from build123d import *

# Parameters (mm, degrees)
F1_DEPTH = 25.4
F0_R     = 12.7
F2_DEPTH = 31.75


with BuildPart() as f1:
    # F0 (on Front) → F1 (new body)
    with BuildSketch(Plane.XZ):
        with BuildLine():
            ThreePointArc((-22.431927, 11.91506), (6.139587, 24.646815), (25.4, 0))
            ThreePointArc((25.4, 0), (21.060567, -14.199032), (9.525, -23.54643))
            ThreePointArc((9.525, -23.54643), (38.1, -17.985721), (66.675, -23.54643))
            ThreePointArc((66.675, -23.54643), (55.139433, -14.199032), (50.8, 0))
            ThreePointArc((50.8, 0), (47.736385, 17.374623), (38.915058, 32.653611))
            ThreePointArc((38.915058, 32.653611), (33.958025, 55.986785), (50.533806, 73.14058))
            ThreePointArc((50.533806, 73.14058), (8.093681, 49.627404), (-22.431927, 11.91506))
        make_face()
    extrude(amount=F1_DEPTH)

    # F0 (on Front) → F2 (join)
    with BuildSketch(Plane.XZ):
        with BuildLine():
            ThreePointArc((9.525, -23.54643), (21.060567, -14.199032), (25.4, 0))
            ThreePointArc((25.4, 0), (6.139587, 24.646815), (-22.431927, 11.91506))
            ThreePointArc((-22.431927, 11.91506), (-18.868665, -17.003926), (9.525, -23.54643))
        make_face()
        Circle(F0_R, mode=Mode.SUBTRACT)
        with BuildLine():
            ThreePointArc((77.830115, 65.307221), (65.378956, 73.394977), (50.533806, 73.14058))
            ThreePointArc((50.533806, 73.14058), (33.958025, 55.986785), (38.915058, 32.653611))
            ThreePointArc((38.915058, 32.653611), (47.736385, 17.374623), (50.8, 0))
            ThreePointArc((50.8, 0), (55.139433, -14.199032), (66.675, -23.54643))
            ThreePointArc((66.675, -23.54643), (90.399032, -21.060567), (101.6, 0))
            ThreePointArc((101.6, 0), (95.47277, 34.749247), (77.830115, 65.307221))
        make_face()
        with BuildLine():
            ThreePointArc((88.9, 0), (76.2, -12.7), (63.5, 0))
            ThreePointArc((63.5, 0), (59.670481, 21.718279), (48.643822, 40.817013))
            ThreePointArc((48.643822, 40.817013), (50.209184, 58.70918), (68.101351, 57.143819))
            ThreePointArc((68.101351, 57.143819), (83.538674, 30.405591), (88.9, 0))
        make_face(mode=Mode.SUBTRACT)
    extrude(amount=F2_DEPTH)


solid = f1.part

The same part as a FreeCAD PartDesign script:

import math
import FreeCAD as App
import Part
import Sketcher
Q = App.Units.Quantity

doc = App.newDocument("Part")
body = doc.addObject("PartDesign::Body", "Body")

# Sketch on XZ plane
sketch1 = body.newObject("Sketcher::SketchObject", "Sketch")
sketch1.AttachmentSupport = (doc.getObject("XZ_Plane"), [""])
sketch1.MapMode = "FlatFace"
sketch1.addGeometry(Part.ArcOfCircle(Part.Circle(App.Vector(0, 0, 0), App.Vector(0, 0, 1), 25.4), math.radians(-0.000001), math.radians(152.024314)), False)
sketch1.addGeometry(Part.ArcOfCircle(Part.Circle(App.Vector(0, 0, 0), App.Vector(0, 0, 1), 25.4), math.radians(-67.975687), math.radians(-0.000001)), False)
sketch1.addGeometry(Part.ArcOfCircle(Part.Circle(App.Vector(38.1, -94.185726, 0), App.Vector(0, 0, 1), 76.200005), math.radians(67.975689), math.radians(112.024311)), False)
sketch1.addGeometry(Part.ArcOfCircle(Part.Circle(App.Vector(76.2, 0, 0), App.Vector(0, 0, 1), 25.4), math.radians(-179.999999), math.radians(-112.024313)), False)
sketch1.addGeometry(Part.ArcOfCircle(Part.Circle(App.Vector(-0.000008, -0.000002, 0), App.Vector(0, 0, 1), 50.800008), math.radians(0.000002), math.radians(39.999996)), False)
sketch1.addGeometry(Part.ArcOfCircle(Part.Circle(App.Vector(58.372585, 48.980417, 0), App.Vector(0, 0, 1), 25.399999), math.radians(107.975686), math.radians(220.000003)), False)
sketch1.addGeometry(Part.ArcOfCircle(Part.Circle(App.Vector(89.727709, -47.660242, 0), App.Vector(0, 0, 1), 127.000002), math.radians(107.975688), math.radians(152.024313)), False)
sketch1.addConstraint(Sketcher.Constraint("Tangent", 0, 1, 1, 2))
sketch1.addConstraint(Sketcher.Constraint("Tangent", 1, 1, 2, 2))
sketch1.addConstraint(Sketcher.Constraint("Tangent", 2, 1, 3, 2))
sketch1.addConstraint(Sketcher.Constraint("Tangent", 3, 1, 4, 1))
sketch1.addConstraint(Sketcher.Constraint("Tangent", 4, 2, 5, 2))
sketch1.addConstraint(Sketcher.Constraint("Tangent", 5, 1, 6, 1))
sketch1.addConstraint(Sketcher.Constraint("Tangent", 6, 2, 0, 2))
sketch1.addConstraint(Sketcher.Constraint("Coincident", 0, 3, -1, 1))
sketch1.addConstraint(Sketcher.Constraint("Coincident", 4, 3, -1, 1))
sketch1.addConstraint(Sketcher.Constraint("Equal", 0, 1))
sketch1.addConstraint(Sketcher.Constraint("Equal", 1, 3))
sketch1.addConstraint(Sketcher.Constraint("Equal", 3, 5))
sketch1.addConstraint(Sketcher.Constraint("PointOnObject", 3, 3, -1))
sketch1.addConstraint(Sketcher.Constraint("PointOnObject", 0, 1, -1))
sketch1.addConstraint(Sketcher.Constraint("Radius", 0, Q("1 in")))
sketch1.addConstraint(Sketcher.Constraint("Radius", 6, Q("5.0000001 in")))
sketch1.addConstraint(Sketcher.Constraint("DistanceX", -1, 1, 3, 3, Q("3 in")))
sketch1.addConstraint(Sketcher.Constraint("DistanceX", -1, 1, 1, 1, Q("0.375 in")))
sketch1.addConstraint(Sketcher.Constraint("DistanceX", -1, 1, 6, 3, 89.727709))
pad1 = body.newObject("PartDesign::Pad", "Pad")
pad1.Profile = sketch1
pad1.Length = Q("1 in")

# Sketch on XZ plane
sketch2 = body.newObject("Sketcher::SketchObject", "Sketch001")
sketch2.AttachmentSupport = (doc.getObject("XZ_Plane"), [""])
sketch2.MapMode = "FlatFace"
sketch2.addGeometry(Part.ArcOfCircle(Part.Circle(App.Vector(0, 0, 0), App.Vector(0, 0, 1), 25.4), math.radians(-67.975687), math.radians(-0.000001)), False)
sketch2.addGeometry(Part.ArcOfCircle(Part.Circle(App.Vector(0, 0, 0), App.Vector(0, 0, 1), 25.4), math.radians(-0.000001), math.radians(152.024314)), False)
sketch2.addGeometry(Part.ArcOfCircle(Part.Circle(App.Vector(-0.000001, 0, 0), App.Vector(0, 0, 1), 25.4), math.radians(152.024312), math.radians(292.024314)), False)
sketch2.addGeometry(Part.Circle(App.Vector(0, 0, 0), App.Vector(0, 0, 1), 12.7), False)
sketch2.addGeometry(Part.ArcOfCircle(Part.Circle(App.Vector(58.372586, 48.980417, 0), App.Vector(0, 0, 1), 25.399999), math.radians(39.999997), math.radians(107.975688)), False)
sketch2.addGeometry(Part.ArcOfCircle(Part.Circle(App.Vector(58.372585, 48.980417, 0), App.Vector(0, 0, 1), 25.399999), math.radians(107.975686), math.radians(220.000003)), False)
sketch2.addGeometry(Part.ArcOfCircle(Part.Circle(App.Vector(-0.000008, -0.000002, 0), App.Vector(0, 0, 1), 50.800008), math.radians(0.000002), math.radians(39.999996)), False)
sketch2.addGeometry(Part.ArcOfCircle(Part.Circle(App.Vector(76.2, 0, 0), App.Vector(0, 0, 1), 25.4), math.radians(-179.999999), math.radians(-112.024313)), False)
sketch2.addGeometry(Part.ArcOfCircle(Part.Circle(App.Vector(76.2, 0, 0), App.Vector(0, 0, 1), 25.4), math.radians(-112.024313), math.radians(0)), False)
sketch2.addGeometry(Part.ArcOfCircle(Part.Circle(App.Vector(0.000002, 0, 0), App.Vector(0, 0, 1), 101.599998), math.radians(0), math.radians(40.000001)), False)
sketch2.addGeometry(Part.ArcOfCircle(Part.Circle(App.Vector(-0.000001, 0, 0), App.Vector(0, 0, 1), 88.900001), math.radians(0), math.radians(40)), False)
sketch2.addGeometry(Part.ArcOfCircle(Part.Circle(App.Vector(76.2, 0, 0), App.Vector(0, 0, 1), 12.7), math.radians(180), math.radians(360)), False)
sketch2.addGeometry(Part.ArcOfCircle(Part.Circle(App.Vector(-0.000005, -0.000002, 0), App.Vector(0, 0, 1), 63.500005), math.radians(0.000002), math.radians(39.999999)), False)
sketch2.addGeometry(Part.ArcOfCircle(Part.Circle(App.Vector(58.372587, 48.980415, 0), App.Vector(0, 0, 1), 12.7), math.radians(40.000004), math.radians(219.999998)), False)
sketch2.addConstraint(Sketcher.Constraint("Tangent", 0, 2, 1, 1))
sketch2.addConstraint(Sketcher.Constraint("Tangent", 1, 2, 2, 1))
sketch2.addConstraint(Sketcher.Constraint("Tangent", 2, 2, 0, 1))
sketch2.addConstraint(Sketcher.Constraint("Tangent", 4, 2, 5, 1))
sketch2.addConstraint(Sketcher.Constraint("Tangent", 5, 2, 6, 2))
sketch2.addConstraint(Sketcher.Constraint("Tangent", 6, 1, 7, 1))
sketch2.addConstraint(Sketcher.Constraint("Tangent", 7, 2, 8, 1))
sketch2.addConstraint(Sketcher.Constraint("Tangent", 8, 2, 9, 1))
sketch2.addConstraint(Sketcher.Constraint("Tangent", 9, 2, 4, 1))
sketch2.addConstraint(Sketcher.Constraint("Tangent", 10, 1, 11, 2))
sketch2.addConstraint(Sketcher.Constraint("Tangent", 11, 1, 12, 1))
sketch2.addConstraint(Sketcher.Constraint("Tangent", 12, 2, 13, 2))
sketch2.addConstraint(Sketcher.Constraint("Tangent", 13, 1, 10, 2))
sketch2.addConstraint(Sketcher.Constraint("Coincident", 0, 3, -1, 1))
sketch2.addConstraint(Sketcher.Constraint("Coincident", 3, 3, -1, 1))
sketch2.addConstraint(Sketcher.Constraint("Coincident", 6, 3, -1, 1))
sketch2.addConstraint(Sketcher.Constraint("Coincident", 9, 3, -1, 1))
sketch2.addConstraint(Sketcher.Constraint("Coincident", 10, 3, -1, 1))
sketch2.addConstraint(Sketcher.Constraint("Coincident", 12, 3, -1, 1))
sketch2.addConstraint(Sketcher.Constraint("Coincident", 11, 3, 7, 3))
sketch2.addConstraint(Sketcher.Constraint("Coincident", 13, 3, 4, 3))
sketch2.addConstraint(Sketcher.Constraint("Equal", 2, 4))
sketch2.addConstraint(Sketcher.Constraint("Equal", 4, 5))
sketch2.addConstraint(Sketcher.Constraint("Equal", 3, 11))
sketch2.addConstraint(Sketcher.Constraint("PointOnObject", 7, 3, -1))
sketch2.addConstraint(Sketcher.Constraint("PointOnObject", 0, 2, -1))
sketch2.addConstraint(Sketcher.Constraint("Horizontal", 2, 2, 7, 2))
sketch2.addConstraint(Sketcher.Constraint("Diameter", 3, Q("1 in")))
sketch2.addConstraint(Sketcher.Constraint("Radius", 0, Q("1 in")))
sketch2.addConstraint(Sketcher.Constraint("Radius", 9, Q("3.9999999 in")))
sketch2.addConstraint(Sketcher.Constraint("DistanceX", -1, 1, 2, 2, Q("0.375 in")))
sketch2.addConstraint(Sketcher.Constraint("DistanceY", 9, 2, 4, 2, Q("0.3084 in")))
sketch2.addConstraint(Sketcher.Constraint("DistanceY", 4, 3, 13, 1, 8.163402))
sketch2.addConstraint(Sketcher.Constraint("DistanceY", -1, 1, 1, 2, 11.91506))
pad2 = body.newObject("PartDesign::Pad", "Pad001")
pad2.Profile = sketch2
pad2.Length = Q("1.25 in")

doc.recompute()
